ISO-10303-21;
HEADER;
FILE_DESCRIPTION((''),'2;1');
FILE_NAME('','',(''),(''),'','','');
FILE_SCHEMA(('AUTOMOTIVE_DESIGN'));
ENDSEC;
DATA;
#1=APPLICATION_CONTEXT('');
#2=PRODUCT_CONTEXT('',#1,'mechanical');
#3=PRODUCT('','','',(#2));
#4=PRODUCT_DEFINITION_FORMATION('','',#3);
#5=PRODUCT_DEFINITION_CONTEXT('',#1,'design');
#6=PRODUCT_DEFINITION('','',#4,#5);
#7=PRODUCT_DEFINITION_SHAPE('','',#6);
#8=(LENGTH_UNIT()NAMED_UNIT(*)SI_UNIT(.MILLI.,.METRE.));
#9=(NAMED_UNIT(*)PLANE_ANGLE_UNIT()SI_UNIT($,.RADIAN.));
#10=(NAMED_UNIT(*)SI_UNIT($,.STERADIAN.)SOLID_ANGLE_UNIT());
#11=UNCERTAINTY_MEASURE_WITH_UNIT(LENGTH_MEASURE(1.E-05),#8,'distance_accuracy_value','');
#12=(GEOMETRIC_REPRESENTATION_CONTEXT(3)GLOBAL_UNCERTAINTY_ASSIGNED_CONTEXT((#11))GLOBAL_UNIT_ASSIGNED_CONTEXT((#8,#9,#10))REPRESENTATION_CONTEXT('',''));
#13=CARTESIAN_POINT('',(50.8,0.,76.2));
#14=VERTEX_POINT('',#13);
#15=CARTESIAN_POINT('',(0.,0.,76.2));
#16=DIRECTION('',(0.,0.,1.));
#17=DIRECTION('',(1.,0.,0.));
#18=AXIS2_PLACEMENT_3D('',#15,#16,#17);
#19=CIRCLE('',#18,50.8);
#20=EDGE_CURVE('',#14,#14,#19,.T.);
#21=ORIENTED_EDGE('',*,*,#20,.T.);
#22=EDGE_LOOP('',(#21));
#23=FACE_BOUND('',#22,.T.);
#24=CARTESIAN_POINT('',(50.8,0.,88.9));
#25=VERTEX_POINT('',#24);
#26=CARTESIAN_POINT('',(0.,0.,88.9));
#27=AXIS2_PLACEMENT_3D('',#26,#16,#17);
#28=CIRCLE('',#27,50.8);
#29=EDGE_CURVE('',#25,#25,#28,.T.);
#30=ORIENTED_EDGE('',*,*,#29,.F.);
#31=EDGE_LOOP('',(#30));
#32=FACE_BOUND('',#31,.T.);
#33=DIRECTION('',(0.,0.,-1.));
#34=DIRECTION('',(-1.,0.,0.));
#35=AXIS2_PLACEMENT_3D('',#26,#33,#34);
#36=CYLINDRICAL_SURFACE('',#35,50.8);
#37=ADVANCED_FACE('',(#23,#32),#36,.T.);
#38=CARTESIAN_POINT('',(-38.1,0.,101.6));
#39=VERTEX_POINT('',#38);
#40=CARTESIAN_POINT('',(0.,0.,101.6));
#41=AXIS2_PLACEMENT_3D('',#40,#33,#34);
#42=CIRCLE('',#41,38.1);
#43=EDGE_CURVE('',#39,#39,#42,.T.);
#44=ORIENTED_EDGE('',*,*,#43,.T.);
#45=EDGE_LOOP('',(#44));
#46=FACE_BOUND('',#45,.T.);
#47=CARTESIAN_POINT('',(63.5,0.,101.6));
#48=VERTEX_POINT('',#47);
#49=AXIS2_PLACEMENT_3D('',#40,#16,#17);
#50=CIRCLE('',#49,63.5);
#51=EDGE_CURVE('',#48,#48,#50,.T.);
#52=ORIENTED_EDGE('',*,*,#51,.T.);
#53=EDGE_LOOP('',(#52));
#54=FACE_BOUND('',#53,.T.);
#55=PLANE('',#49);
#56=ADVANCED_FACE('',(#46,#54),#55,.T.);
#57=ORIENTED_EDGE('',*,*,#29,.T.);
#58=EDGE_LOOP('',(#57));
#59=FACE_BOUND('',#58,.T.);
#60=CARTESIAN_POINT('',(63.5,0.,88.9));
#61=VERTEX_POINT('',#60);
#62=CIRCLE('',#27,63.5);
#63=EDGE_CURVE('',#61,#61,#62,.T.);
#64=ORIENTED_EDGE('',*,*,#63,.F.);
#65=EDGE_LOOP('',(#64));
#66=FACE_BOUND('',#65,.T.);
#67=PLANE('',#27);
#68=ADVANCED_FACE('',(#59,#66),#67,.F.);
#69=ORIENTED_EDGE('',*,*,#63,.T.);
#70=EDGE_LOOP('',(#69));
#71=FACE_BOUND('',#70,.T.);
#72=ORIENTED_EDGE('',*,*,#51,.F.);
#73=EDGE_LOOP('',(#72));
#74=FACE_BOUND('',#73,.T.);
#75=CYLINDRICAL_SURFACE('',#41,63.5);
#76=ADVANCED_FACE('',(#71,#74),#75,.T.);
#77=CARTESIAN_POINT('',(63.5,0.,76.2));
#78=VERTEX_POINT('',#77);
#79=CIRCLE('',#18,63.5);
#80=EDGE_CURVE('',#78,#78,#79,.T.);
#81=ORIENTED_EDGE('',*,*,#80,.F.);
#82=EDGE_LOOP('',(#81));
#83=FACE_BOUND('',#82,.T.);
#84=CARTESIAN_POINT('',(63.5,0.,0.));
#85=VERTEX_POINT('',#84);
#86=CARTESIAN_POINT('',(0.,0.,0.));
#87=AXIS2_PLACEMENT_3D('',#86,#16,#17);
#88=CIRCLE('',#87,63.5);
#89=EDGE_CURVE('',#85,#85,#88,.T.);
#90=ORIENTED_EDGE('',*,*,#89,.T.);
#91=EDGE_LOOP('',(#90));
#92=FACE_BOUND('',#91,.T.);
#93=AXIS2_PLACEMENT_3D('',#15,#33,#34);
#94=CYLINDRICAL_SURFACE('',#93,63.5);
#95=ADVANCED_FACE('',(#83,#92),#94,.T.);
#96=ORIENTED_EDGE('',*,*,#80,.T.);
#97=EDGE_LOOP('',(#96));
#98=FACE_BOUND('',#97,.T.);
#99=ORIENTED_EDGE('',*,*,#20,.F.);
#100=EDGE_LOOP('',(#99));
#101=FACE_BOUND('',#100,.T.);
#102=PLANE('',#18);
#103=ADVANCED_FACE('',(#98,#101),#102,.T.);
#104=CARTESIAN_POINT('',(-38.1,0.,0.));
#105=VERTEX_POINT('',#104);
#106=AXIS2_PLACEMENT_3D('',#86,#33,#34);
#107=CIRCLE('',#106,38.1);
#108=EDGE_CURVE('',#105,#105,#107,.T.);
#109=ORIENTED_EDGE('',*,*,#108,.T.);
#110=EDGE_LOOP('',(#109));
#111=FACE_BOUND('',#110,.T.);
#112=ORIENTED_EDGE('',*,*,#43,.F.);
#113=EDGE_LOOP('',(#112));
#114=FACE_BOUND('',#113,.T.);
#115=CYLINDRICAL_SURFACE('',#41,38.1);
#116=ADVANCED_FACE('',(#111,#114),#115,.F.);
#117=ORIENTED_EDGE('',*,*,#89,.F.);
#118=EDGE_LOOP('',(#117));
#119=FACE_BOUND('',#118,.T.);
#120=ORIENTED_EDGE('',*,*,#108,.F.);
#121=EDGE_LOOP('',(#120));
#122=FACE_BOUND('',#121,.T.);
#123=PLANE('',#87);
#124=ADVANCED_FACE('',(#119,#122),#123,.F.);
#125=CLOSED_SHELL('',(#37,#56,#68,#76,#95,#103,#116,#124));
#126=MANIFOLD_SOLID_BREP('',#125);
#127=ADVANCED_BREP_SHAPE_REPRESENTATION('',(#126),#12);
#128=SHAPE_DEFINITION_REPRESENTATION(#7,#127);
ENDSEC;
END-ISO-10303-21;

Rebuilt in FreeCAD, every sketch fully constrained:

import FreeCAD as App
import Part
import Sketcher
from FreeCAD import Vector
Q = App.Units.Quantity

doc = App.newDocument("Part")
params = doc.addObject("Spreadsheet::Sheet", "Params")
for row, (alias, value) in enumerate([
    ("sketch1_diameter", "5 in"),
    ("pad1_length", "3 in"),
    ("sketch2_diameter", "4 in"),
    ("pad2_length", "0.5 in"),
    ("sketch3_diameter", "5 in"),
    ("pad3_length", "0.5 in"),
    ("sketch4_diameter", "3 in"),
], start=1):
    params.set(f"A{row}", alias)
    params.set(f"B{row}", "=" + value)
    params.setAlias(f"B{row}", alias)

body = doc.addObject("PartDesign::Body", "Body")

# Sketch on XY plane
sketch1 = doc.addObject("Sketcher::SketchObject", "Sketch")
body.addObject(sketch1)
sketch1.AttachmentSupport = (doc.XY_Plane, [""])
sketch1.MapMode = "FlatFace"
sketch1.addGeometry(Part.Circle(Vector(0, 0, 0), Vector(0, 0, 1), 64), False)
sketch1.addConstraint([
    Sketcher.Constraint("Coincident", 0, 3, -1, 1),
    Sketcher.Constraint("Diameter", 0, Q("5 in")),
])
sketch1.setExpression("Constraints[1]", "Params.sketch1_diameter")
pad1 = doc.addObject("PartDesign::Pad", "Pad")
body.addObject(pad1)
pad1.Profile = sketch1
pad1.setExpression("Length", "Params.pad1_length")

# Sketch on XY plane
sketch2 = doc.addObject("Sketcher::SketchObject", "Sketch001")
body.addObject(sketch2)
sketch2.AttachmentSupport = (doc.XY_Plane, [""])
sketch2.MapMode = "FlatFace"
sketch2.AttachmentOffset = App.Placement(Vector(0, 0, 3 * 25.4), App.Rotation())
sketch2.addGeometry(Part.Circle(Vector(0, 0, 0), Vector(0, 0, 1), 51), False)
sketch2.addConstraint([
    Sketcher.Constraint("Coincident", 0, 3, -1, 1),
    Sketcher.Constraint("Diameter", 0, Q("4 in")),
])
sketch2.setExpression("Constraints[1]", "Params.sketch2_diameter")
pad2 = doc.addObject("PartDesign::Pad", "Pad001")
body.addObject(pad2)
pad2.Profile = sketch2
pad2.setExpression("Length", "Params.pad2_length")

# Sketch on XY plane
sketch3 = doc.addObject("Sketcher::SketchObject", "Sketch002")
body.addObject(sketch3)
sketch3.AttachmentSupport = (doc.XY_Plane, [""])
sketch3.MapMode = "FlatFace"
sketch3.AttachmentOffset = App.Placement(Vector(0, 0, 3.5 * 25.4), App.Rotation())
sketch3.addGeometry(Part.Circle(Vector(0, 0, 0), Vector(0, 0, 1), 64), False)
sketch3.addConstraint([
    Sketcher.Constraint("Coincident", 0, 3, -1, 1),
    Sketcher.Constraint("Diameter", 0, Q("5 in")),
])
sketch3.setExpression("Constraints[1]", "Params.sketch3_diameter")
pad3 = doc.addObject("PartDesign::Pad", "Pad002")
body.addObject(pad3)
pad3.Profile = sketch3
pad3.setExpression("Length", "Params.pad3_length")

# Sketch on XY plane
sketch4 = doc.addObject("Sketcher::SketchObject", "Sketch003")
body.addObject(sketch4)
sketch4.AttachmentSupport = (doc.XY_Plane, [""])
sketch4.MapMode = "FlatFace"
sketch4.addGeometry(Part.Circle(Vector(0, 0, 0), Vector(0, 0, 1), 38), False)
sketch4.addConstraint([
    Sketcher.Constraint("Coincident", 0, 3, -1, 1),
    Sketcher.Constraint("Diameter", 0, Q("3 in")),
])
sketch4.setExpression("Constraints[1]", "Params.sketch4_diameter")
pocket1 = doc.addObject("PartDesign::Pocket", "Pocket")
body.addObject(pocket1)
pocket1.Profile = sketch4
pocket1.Type = "ThroughAll"
pocket1.Reversed = True

doc.recompute()
